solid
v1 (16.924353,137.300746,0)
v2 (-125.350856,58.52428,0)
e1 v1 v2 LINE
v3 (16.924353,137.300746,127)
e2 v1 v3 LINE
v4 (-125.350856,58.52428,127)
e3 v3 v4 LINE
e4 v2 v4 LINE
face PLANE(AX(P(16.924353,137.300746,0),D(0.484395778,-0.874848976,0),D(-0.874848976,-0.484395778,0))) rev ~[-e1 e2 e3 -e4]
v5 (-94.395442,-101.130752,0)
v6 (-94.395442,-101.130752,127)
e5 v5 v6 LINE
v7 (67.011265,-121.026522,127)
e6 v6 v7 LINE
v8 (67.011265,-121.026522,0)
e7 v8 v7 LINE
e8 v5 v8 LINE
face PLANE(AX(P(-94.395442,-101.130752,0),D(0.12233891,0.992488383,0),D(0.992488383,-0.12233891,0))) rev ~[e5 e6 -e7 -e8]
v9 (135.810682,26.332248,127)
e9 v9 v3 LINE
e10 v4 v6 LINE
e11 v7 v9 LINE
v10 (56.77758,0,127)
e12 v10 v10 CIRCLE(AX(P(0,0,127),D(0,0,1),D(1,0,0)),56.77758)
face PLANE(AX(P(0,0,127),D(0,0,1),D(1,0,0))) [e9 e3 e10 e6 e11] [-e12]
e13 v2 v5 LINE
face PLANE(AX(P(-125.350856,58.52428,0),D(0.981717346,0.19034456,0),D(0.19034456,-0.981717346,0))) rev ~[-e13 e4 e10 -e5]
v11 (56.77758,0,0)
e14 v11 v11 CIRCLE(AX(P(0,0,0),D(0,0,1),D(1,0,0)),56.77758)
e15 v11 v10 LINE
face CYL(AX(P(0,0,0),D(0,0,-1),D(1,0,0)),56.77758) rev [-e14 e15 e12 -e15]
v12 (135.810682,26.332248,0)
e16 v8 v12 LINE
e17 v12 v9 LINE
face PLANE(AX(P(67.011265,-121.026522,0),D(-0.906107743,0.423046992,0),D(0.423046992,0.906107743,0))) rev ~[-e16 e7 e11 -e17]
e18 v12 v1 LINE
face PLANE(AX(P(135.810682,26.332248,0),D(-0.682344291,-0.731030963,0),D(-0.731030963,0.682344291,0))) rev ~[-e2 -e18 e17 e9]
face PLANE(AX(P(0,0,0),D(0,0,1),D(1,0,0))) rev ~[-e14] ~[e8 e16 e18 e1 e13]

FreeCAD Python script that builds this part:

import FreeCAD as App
import Part
import Sketcher

V = App.Vector
Q = App.Units.Quantity


def add_polygon(sketch, points):
    """Adds a closed chain of lines whose ends are joined by coincident constraints."""
    first, n = sketch.GeometryCount, len(points)
    for a, b in zip(points, points[1:] + points[:1]):
        sketch.addGeometry(Part.LineSegment(App.Vector(*a, 0), App.Vector(*b, 0)), False)
    for i in range(n):
        sketch.addConstraint(Sketcher.Constraint("Coincident", first + i, 2, first + (i + 1) % n, 1))

doc = App.newDocument("Part")
body = doc.addObject("PartDesign::Body", "Body")

sketch1 = body.newObject("Sketcher::SketchObject", "Sketch")
sketch1.AttachmentSupport = (doc.getObject("XY_Plane"), [""])
sketch1.MapMode = "FlatFace"
add_polygon(sketch1, [(17, 137), (-125, 59), (-94, -101), (67, -121), (136, 26)])
sketch1.addGeometry(Part.Circle(V(0, 0, 0), V(0, 0, 1), 57), False)
sketch1.addConstraint([
    Sketcher.Constraint("Coincident", 5, 3, -1, 1),
    Sketcher.Constraint("Equal", 0, 1),
    Sketcher.Constraint("Equal", 1, 2),
    Sketcher.Constraint("Equal", 2, 3),
    Sketcher.Constraint("Equal", 3, 4),
    Sketcher.Constraint("Diameter", 5, 113.55516),
    Sketcher.Constraint("DistanceY", 2, 2, 0, 2, 179.550802),
    Sketcher.Constraint("DistanceY", 1, 2, 3, 2, 127.463),
    Sketcher.Constraint("DistanceY", 3, 2, 4, 2, 110.968498),
    Sketcher.Constraint("Distance", 0, 162.628308),
    Sketcher.Constraint("DistanceY", -1, 1, 0, 2, 58.52428),
    Sketcher.Constraint("DistanceX", 0, 2, -1, 1, 125.350856),
])
pad1 = body.newObject("PartDesign::Pad", "Pad")
pad1.Profile = sketch1
pad1.Length = Q("5 in")

doc.recompute()
